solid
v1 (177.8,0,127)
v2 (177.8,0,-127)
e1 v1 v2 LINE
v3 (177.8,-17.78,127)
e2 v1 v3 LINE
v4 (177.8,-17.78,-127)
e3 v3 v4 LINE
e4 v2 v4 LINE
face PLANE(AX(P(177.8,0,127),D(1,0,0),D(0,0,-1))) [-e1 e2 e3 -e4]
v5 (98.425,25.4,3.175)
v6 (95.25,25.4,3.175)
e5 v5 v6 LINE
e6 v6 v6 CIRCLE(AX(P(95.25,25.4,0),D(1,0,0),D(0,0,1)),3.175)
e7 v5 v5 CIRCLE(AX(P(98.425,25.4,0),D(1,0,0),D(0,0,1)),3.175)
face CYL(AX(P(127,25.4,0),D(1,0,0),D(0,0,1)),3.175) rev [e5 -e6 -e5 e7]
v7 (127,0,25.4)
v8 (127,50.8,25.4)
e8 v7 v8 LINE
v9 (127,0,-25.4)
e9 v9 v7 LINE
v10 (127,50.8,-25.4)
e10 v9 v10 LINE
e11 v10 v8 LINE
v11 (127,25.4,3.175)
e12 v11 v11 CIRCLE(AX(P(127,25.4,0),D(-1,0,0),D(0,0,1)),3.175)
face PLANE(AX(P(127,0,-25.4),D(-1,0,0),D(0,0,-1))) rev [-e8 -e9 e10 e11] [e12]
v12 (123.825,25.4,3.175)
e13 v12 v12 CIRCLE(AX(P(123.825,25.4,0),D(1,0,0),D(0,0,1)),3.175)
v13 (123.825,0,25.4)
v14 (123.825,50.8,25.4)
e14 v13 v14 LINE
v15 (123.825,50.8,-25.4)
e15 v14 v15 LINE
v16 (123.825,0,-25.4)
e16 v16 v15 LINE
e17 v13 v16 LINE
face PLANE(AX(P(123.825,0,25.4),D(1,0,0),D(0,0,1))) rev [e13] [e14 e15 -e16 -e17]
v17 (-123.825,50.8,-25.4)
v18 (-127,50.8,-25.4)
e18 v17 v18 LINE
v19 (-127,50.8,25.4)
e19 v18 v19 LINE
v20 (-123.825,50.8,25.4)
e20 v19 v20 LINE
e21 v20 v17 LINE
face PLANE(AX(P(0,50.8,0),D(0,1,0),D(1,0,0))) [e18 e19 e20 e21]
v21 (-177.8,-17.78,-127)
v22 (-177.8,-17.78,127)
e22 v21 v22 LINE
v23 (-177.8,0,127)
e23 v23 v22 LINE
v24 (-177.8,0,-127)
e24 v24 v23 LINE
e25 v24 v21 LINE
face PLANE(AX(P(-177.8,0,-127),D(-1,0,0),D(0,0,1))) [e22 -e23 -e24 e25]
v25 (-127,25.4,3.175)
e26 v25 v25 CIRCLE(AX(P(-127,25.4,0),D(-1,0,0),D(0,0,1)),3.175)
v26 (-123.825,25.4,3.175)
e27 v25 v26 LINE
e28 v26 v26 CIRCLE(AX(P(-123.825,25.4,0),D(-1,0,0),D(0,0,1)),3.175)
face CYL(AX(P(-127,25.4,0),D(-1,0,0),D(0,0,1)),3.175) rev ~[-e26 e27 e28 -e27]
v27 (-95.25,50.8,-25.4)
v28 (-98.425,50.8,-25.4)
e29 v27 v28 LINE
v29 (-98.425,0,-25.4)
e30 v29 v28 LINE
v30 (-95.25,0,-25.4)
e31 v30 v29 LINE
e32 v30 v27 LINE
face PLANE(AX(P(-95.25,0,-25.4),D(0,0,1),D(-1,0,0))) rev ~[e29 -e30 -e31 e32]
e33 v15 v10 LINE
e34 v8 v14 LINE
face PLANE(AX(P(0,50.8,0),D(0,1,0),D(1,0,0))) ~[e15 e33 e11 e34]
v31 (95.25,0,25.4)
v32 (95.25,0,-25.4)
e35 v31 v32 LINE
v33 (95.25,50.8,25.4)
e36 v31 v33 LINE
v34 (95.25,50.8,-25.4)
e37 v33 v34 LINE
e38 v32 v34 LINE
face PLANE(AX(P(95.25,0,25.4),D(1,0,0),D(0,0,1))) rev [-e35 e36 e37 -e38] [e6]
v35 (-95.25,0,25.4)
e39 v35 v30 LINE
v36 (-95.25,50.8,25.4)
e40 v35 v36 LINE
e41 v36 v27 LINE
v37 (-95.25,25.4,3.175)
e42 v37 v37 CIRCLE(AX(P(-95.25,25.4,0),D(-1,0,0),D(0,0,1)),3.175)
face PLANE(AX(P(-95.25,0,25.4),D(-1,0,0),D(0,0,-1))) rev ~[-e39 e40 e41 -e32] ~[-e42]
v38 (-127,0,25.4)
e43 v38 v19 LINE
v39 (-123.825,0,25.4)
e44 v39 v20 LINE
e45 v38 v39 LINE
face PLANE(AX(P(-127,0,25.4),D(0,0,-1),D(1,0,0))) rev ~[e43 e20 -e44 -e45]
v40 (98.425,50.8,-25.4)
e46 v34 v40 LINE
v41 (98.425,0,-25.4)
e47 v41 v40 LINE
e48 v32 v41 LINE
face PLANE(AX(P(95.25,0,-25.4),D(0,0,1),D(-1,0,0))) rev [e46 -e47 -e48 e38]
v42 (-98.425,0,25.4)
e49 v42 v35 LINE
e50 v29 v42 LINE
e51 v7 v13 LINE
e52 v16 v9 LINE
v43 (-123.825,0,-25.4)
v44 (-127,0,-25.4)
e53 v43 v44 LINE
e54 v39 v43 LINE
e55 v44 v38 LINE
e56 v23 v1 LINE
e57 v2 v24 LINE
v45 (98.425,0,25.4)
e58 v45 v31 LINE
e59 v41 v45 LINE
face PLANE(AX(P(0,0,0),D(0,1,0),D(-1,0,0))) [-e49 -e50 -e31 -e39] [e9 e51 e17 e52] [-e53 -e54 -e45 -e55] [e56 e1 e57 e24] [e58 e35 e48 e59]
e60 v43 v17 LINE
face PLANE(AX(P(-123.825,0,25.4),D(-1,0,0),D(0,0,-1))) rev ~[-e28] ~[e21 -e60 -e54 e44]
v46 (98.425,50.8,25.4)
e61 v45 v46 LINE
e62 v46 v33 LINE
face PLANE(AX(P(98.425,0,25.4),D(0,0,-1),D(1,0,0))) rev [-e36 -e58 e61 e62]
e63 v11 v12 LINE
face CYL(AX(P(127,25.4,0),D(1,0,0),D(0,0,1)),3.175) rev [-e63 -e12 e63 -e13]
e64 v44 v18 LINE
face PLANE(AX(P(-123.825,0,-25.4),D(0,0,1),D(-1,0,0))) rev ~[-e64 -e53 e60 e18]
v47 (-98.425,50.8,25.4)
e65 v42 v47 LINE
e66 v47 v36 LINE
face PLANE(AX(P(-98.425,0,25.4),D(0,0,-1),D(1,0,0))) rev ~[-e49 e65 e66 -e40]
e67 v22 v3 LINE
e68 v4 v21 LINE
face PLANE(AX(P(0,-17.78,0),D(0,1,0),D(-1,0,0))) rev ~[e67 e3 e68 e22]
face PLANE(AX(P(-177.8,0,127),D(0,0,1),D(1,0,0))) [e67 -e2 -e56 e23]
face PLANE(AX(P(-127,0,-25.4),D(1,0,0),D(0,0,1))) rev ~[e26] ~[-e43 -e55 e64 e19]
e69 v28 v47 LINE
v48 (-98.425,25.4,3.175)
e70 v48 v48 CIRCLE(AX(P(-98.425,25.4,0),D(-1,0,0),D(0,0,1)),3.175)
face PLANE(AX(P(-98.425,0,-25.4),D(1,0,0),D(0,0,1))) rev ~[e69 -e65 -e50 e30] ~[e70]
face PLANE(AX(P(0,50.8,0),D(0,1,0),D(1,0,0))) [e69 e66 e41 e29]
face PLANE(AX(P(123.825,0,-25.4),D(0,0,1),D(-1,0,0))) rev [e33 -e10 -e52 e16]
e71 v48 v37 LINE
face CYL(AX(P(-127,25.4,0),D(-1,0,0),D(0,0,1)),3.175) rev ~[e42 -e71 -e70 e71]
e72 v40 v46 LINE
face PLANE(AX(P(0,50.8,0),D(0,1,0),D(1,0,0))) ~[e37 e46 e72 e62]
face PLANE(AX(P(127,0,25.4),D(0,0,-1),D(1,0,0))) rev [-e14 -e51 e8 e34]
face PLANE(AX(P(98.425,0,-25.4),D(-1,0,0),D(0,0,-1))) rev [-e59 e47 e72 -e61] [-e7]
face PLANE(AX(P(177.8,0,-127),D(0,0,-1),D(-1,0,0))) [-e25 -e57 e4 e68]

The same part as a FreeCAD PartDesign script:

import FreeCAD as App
import Part
import Sketcher
Q = App.Units.Quantity


def add_polygon(sketch, points):
    """Adds a closed chain of lines whose ends are joined by coincident constraints."""
    first, n = sketch.GeometryCount, len(points)
    for a, b in zip(points, points[1:] + points[:1]):
        sketch.addGeometry(Part.LineSegment(App.Vector(*a, 0), App.Vector(*b, 0)), False)
    for i in range(n):
        sketch.addConstraint(Sketcher.Constraint("Coincident", first + i, 2, first + (i + 1) % n, 1))

doc = App.newDocument("Part")
body = doc.addObject("PartDesign::Body", "Body")

sketch1 = body.newObject("Sketcher::SketchObject", "Sketch")
sketch1.AttachmentSupport = (doc.getObject("XZ_Plane"), [""])
sketch1.MapMode = "FlatFace"
add_polygon(sketch1, [(-177.8, 127), (177.8, 127), (177.8, -127), (-177.8, -127)])
sketch1.addConstraint(Sketcher.Constraint("Horizontal", 0))
sketch1.addConstraint(Sketcher.Constraint("Vertical", 1))
sketch1.addConstraint(Sketcher.Constraint("Horizontal", 2))
sketch1.addConstraint(Sketcher.Constraint("Vertical", 3))
sketch1.addConstraint(Sketcher.Constraint("Symmetric", 0, 2, 2, 2, -1, 1))
sketch1.addConstraint(Sketcher.Constraint("DistanceX", 0, 1, 0, 2, Q("14 in")))
sketch1.addConstraint(Sketcher.Constraint("DistanceY", 1, 2, 1, 1, Q("10 in")))
pad1 = body.newObject("PartDesign::Pad", "Pad")
pad1.Profile = sketch1
pad1.Length = Q("0.7 in")

sketch2 = body.newObject("Sketcher::SketchObject", "Sketch001")
sketch2.AttachmentSupport = (doc.getObject("XZ_Plane"), [""])
sketch2.MapMode = "FlatFace"
add_polygon(sketch2, [(-127, -25.4), (-127, 25.4), (-123.825, 25.4), (-123.825, -25.4)])
add_polygon(sketch2, [(-98.425, -25.4), (-98.425, 25.4), (-95.25, 25.4), (-95.25, -25.4)])
sketch2.addConstraint(Sketcher.Constraint("Vertical", 0))
sketch2.addConstraint(Sketcher.Constraint("Horizontal", 1))
sketch2.addConstraint(Sketcher.Constraint("Vertical", 2))
sketch2.addConstraint(Sketcher.Constraint("Horizontal", 3))
sketch2.addConstraint(Sketcher.Constraint("Vertical", 4))
sketch2.addConstraint(Sketcher.Constraint("Horizontal", 5))
sketch2.addConstraint(Sketcher.Constraint("Vertical", 6))
sketch2.addConstraint(Sketcher.Constraint("Horizontal", 7))
sketch2.addConstraint(Sketcher.Constraint("Horizontal", 1, 2, 4, 2))
sketch2.addConstraint(Sketcher.Constraint("Horizontal", 3, 2, 6, 2))
sketch2.addConstraint(Sketcher.Constraint("Equal", 3, 5))
sketch2.addConstraint(Sketcher.Constraint("DistanceY", 0, 1, 0, 2, Q("2 in")))
sketch2.addConstraint(Sketcher.Constraint("DistanceY", -1, 1, 0, 2, Q("1 in")))
sketch2.addConstraint(Sketcher.Constraint("DistanceX", 1, 2, 4, 2, Q("1 in")))
sketch2.addConstraint(Sketcher.Constraint("DistanceX", 1, 1, 1, 2, Q("0.125 in")))
sketch2.addConstraint(Sketcher.Constraint("DistanceX", 0, 2, -1, 1, Q("5 in")))
pad2 = body.newObject("PartDesign::Pad", "Pad001")
pad2.Profile = sketch2
pad2.Length = Q("2 in")
pad2.Reversed = True

sketch3 = body.newObject("Sketcher::SketchObject", "Sketch002")
sketch3.AttachmentSupport = (doc.getObject("YZ_Plane"), [""])
sketch3.MapMode = "FlatFace"
sketch3.AttachmentOffset = App.Placement(App.Vector(0, 0, -5 * 25.4), App.Rotation())
sketch3.addGeometry(Part.Circle(App.Vector(25.4, 0, 0), App.Vector(0, 0, 1), 3.175), False)
sketch3.addConstraint(Sketcher.Constraint("PointOnObject", 0, 3, -1))
sketch3.addConstraint(Sketcher.Constraint("Diameter", 0, Q("0.25 in")))
sketch3.addConstraint(Sketcher.Constraint("DistanceX", -1, 1, 0, 3, Q("1 in")))
pocket1 = body.newObject("PartDesign::Pocket", "Pocket")
pocket1.Profile = sketch3
pocket1.Type = "ThroughAll"
pocket1.Reversed = True
doc.recompute()

mirrored = body.newObject("PartDesign::Mirrored", "Mirrored")
mirrored.Originals = [pad2, pocket1]
mirrored.MirrorPlane = (doc.getObject("YZ_Plane"), [""])
body.Tip = mirrored

doc.recompute()
